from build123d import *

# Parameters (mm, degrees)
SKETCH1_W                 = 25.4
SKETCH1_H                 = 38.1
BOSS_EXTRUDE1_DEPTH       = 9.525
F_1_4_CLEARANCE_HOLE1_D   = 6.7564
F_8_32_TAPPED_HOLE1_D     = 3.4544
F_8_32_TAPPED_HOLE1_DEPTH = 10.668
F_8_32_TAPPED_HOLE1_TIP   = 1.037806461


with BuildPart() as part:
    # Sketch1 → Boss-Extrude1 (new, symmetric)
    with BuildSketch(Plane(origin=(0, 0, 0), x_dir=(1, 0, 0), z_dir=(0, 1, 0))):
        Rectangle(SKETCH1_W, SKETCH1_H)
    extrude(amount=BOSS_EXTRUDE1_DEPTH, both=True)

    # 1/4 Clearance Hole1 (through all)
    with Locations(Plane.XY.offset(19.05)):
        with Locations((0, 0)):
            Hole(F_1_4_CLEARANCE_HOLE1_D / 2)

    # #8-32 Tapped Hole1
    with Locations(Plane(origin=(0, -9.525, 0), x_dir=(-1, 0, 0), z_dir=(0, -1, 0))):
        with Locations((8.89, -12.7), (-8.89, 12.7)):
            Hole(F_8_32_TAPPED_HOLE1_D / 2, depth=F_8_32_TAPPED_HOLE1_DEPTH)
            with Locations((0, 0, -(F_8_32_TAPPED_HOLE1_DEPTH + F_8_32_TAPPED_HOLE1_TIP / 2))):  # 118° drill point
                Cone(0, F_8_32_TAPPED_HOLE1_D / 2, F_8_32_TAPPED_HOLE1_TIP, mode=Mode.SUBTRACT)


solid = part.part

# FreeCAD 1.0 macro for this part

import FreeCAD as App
import Part
import Sketcher
from FreeCAD import Vector
Q = App.Units.Quantity

doc = App.newDocument("Part")
body = doc.addObject("PartDesign::Body", "Body")

# Sketch on XZ plane
sketch1 = body.newObject("Sketcher::SketchObject", "Sketch")
sketch1.AttachmentSupport = (doc.getObject("XZ_Plane"), [""])
sketch1.MapMode = "FlatFace"
sketch1.addGeometry(Part.LineSegment(Vector(-13, -19, 0), Vector(-13, 19, 0)), False)
sketch1.addGeometry(Part.LineSegment(Vector(-13, 19, 0), Vector(13, 19, 0)), False)
sketch1.addGeometry(Part.LineSegment(Vector(13, 19, 0), Vector(13, -19, 0)), False)
sketch1.addGeometry(Part.LineSegment(Vector(13, -19, 0), Vector(-13, -19, 0)), False)
sketch1.addConstraint(Sketcher.Constraint("Coincident", 0, 2, 1, 1))
sketch1.addConstraint(Sketcher.Constraint("Coincident", 1, 2, 2, 1))
sketch1.addConstraint(Sketcher.Constraint("Coincident", 2, 2, 3, 1))
sketch1.addConstraint(Sketcher.Constraint("Coincident", 3, 2, 0, 1))
sketch1.addConstraint(Sketcher.Constraint("Vertical", 0))
sketch1.addConstraint(Sketcher.Constraint("Horizontal", 1))
sketch1.addConstraint(Sketcher.Constraint("Vertical", 2))
sketch1.addConstraint(Sketcher.Constraint("Horizontal", 3))
sketch1.addConstraint(Sketcher.Constraint("Symmetric", 0, 2, 2, 2, -1, 1))
sketch1.addConstraint(Sketcher.Constraint("DistanceX", 1, 1, 1, 2, Q("1 in")))
sketch1.addConstraint(Sketcher.Constraint("DistanceY", 0, 1, 0, 2, Q("1.5 in")))
pad1 = body.newObject("PartDesign::Pad", "Pad")
pad1.Profile = sketch1
pad1.Length = Q("0.75 in")
pad1.Midplane = True

# Sketch on XY plane
sketch2 = body.newObject("Sketcher::SketchObject", "Sketch001")
sketch2.AttachmentSupport = (doc.getObject("XY_Plane"), [""])
sketch2.MapMode = "FlatFace"
sketch2.AttachmentOffset = App.Placement(Vector(0, 0, 0.75 * 25.4), App.Rotation())
sketch2.addGeometry(Part.Circle(Vector(0, 0, 0), Vector(0, 0, 1), 3.4), False)
sketch2.addConstraint(Sketcher.Constraint("Coincident", 0, 3, -1, 1))
sketch2.addConstraint(Sketcher.Constraint("Diameter", 0, Q("0.266 in")))
doc.recompute()
hole = body.newObject("PartDesign::Hole", "Hole")
hole.Profile = sketch2
hole.ThreadType = "None"
hole.Diameter = Q("0.266 in")
hole.DepthType = "ThroughAll"

# Sketch on XZ plane
sketch3 = body.newObject("Sketcher::SketchObject", "Sketch002")
sketch3.AttachmentSupport = (doc.getObject("XZ_Plane"), [""])
sketch3.MapMode = "FlatFace"
sketch3.AttachmentOffset = App.Placement(Vector(0, 0, 0.375 * 25.4), App.Rotation())
sketch3.addGeometry(Part.Circle(Vector(-8.9, 12.7, 0), Vector(0, 0, 1), 1.7), False)
sketch3.addGeometry(Part.Circle(Vector(8.9, -12.7, 0), Vector(0, 0, 1), 1.7), False)
sketch3.addConstraint(Sketcher.Constraint("Equal", 0, 1))
sketch3.addConstraint(Sketcher.Constraint("Symmetric", 0, 3, 1, 3, -1, 1))
sketch3.addConstraint(Sketcher.Constraint("Diameter", 0, Q("0.136 in")))
sketch3.addConstraint(Sketcher.Constraint("DistanceY", 1, 3, 0, 3, Q("1 in")))
sketch3.addConstraint(Sketcher.Constraint("DistanceX", 0, 3, 1, 3, Q("0.7 in")))
doc.recompute()
hole2 = body.newObject("PartDesign::Hole", "Hole001")
hole2.Profile = sketch3
hole2.ThreadType = "None"
hole2.Diameter = Q("0.136 in")
hole2.DepthType = "Dimension"
hole2.Depth = Q("0.42 in")
hole2.DrillPoint = "Angled"
hole2.DrillPointAngle = 118

doc.recompute()
